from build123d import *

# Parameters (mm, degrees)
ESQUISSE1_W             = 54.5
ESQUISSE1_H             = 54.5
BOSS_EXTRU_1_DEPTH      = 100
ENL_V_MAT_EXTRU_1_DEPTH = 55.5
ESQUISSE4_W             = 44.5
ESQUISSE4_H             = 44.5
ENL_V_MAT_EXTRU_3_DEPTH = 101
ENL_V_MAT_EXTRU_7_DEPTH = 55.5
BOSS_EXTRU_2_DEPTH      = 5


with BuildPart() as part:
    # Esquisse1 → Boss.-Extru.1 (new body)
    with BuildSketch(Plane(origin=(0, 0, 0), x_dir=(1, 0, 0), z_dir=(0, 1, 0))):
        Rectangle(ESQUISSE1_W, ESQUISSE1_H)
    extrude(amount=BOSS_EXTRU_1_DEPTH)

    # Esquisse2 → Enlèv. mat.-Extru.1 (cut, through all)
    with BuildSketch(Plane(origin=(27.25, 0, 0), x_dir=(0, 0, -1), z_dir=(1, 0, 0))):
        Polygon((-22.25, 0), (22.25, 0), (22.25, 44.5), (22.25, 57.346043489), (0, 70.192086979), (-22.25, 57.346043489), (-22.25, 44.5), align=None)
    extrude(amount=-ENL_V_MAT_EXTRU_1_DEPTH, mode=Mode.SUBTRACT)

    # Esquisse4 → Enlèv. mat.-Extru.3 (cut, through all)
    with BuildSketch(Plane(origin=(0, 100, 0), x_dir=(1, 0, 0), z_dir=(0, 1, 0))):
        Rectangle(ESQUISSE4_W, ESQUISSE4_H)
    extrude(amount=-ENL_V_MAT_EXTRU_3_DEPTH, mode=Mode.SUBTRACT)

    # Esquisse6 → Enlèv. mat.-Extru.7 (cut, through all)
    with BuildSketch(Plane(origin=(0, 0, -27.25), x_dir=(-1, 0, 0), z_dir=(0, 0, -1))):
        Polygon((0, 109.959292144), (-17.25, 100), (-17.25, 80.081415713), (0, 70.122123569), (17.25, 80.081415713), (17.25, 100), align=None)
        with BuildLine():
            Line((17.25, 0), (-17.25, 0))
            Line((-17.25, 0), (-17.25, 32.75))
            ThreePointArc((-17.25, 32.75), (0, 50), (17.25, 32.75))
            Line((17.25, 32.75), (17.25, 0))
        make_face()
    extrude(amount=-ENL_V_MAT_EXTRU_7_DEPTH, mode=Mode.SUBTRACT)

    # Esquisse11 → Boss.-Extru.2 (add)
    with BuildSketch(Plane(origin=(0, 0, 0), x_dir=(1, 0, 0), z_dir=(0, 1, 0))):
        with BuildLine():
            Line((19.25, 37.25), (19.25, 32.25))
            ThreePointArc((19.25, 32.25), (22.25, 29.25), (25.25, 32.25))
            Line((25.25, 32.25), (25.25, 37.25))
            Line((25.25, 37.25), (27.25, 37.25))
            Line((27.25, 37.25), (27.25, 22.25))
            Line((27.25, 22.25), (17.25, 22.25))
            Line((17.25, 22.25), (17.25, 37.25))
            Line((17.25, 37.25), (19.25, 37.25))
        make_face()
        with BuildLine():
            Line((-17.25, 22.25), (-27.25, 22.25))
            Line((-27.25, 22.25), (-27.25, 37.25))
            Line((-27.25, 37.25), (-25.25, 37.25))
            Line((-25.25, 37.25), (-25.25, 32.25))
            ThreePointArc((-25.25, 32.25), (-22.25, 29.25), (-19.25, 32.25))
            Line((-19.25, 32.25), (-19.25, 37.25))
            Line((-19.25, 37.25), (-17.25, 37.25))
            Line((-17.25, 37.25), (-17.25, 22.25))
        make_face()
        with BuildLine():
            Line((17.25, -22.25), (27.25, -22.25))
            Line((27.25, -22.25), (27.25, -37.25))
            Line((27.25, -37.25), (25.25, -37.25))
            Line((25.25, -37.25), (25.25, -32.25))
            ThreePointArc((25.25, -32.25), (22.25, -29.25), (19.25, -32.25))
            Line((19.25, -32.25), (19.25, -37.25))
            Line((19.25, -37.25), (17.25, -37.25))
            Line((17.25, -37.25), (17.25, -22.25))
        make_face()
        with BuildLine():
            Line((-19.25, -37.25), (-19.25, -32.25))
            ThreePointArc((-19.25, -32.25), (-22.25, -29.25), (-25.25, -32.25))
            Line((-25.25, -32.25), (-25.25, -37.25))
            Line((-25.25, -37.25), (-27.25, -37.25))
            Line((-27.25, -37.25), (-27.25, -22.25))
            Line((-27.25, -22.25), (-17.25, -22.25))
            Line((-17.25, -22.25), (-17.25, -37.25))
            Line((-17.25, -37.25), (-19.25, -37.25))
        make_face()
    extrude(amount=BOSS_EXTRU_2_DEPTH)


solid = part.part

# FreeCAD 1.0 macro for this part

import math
import FreeCAD as App
import Part
import Sketcher
from FreeCAD import Vector
Q = App.Units.Quantity

doc = App.newDocument("Part")
body = doc.addObject("PartDesign::Body", "Body")

sketch1 = body.newObject("Sketcher::SketchObject", "Sketch")
sketch1.AttachmentSupport = (doc.getObject("XZ_Plane"), [""])
sketch1.MapMode = "FlatFace"
sketch1.addGeometry([
    Part.LineSegment(Vector(-27, -27, 0), Vector(-27, 27, 0)),
    Part.LineSegment(Vector(-27, 27, 0), Vector(27, 27, 0)),
    Part.LineSegment(Vector(27, 27, 0), Vector(27, -27, 0)),
    Part.LineSegment(Vector(27, -27, 0), Vector(-27, -27, 0)),
], False)
sketch1.addConstraint([
    Sketcher.Constraint("Coincident", 0, 2, 1, 1),
    Sketcher.Constraint("Coincident", 1, 2, 2, 1),
    Sketcher.Constraint("Coincident", 2, 2, 3, 1),
    Sketcher.Constraint("Coincident", 3, 2, 0, 1),
    Sketcher.Constraint("Vertical", 0),
    Sketcher.Constraint("Horizontal", 1),
    Sketcher.Constraint("Vertical", 2),
    Sketcher.Constraint("Horizontal", 3),
    Sketcher.Constraint("Symmetric", 0, 2, 2, 2, -1, 1),
    Sketcher.Constraint("Equal", 3, 0),
    Sketcher.Constraint("DistanceX", 1, 1, 1, 2, Q("54.5 mm")),
])
pad1 = body.newObject("PartDesign::Pad", "Pad")
pad1.Profile = sketch1
pad1.Length = 100
pad1.Reversed = True

sketch2 = body.newObject("Sketcher::SketchObject", "Sketch001")
sketch2.AttachmentSupport = (doc.getObject("YZ_Plane"), [""])
sketch2.MapMode = "FlatFace"
sketch2.AttachmentOffset = App.Placement(Vector(0, 0, 27.25), App.Rotation())
sketch2.addGeometry([
    Part.LineSegment(Vector(0, 22, 0), Vector(0, -22, 0)),
    Part.LineSegment(Vector(0, -22, 0), Vector(57, -22, 0)),
    Part.LineSegment(Vector(57, -22, 0), Vector(70, 0, 0)),
    Part.LineSegment(Vector(70, 0, 0), Vector(57, 22, 0)),
    Part.LineSegment(Vector(57, 22, 0), Vector(0, 22, 0)),
], False)
sketch2.addConstraint([
    Sketcher.Constraint("Coincident", 0, 2, 1, 1),
    Sketcher.Constraint("Coincident", 1, 2, 2, 1),
    Sketcher.Constraint("Coincident", 2, 2, 3, 1),
    Sketcher.Constraint("Coincident", 3, 2, 4, 1),
    Sketcher.Constraint("Coincident", 4, 2, 0, 1),
    Sketcher.Constraint("Vertical", 0),
    Sketcher.Constraint("Horizontal", 1),
    Sketcher.Constraint("Horizontal", 4),
    Sketcher.Constraint("Symmetric", 0, 2, 4, 2, -1, 1),
    Sketcher.Constraint("PointOnObject", 2, 2, -1),
    Sketcher.Constraint("Vertical", 1, 2, 3, 2),
    Sketcher.Constraint("Angle", 2, Q("60 deg")),
    Sketcher.Constraint("DistanceY", 0, 2, 0, 1, Q("44.5 mm")),
    Sketcher.Constraint("DistanceX", 1, 1, 1, 2, Q("57.346043 mm")),
])
pocket1 = body.newObject("PartDesign::Pocket", "Pocket")
pocket1.Profile = sketch2
pocket1.Type = "ThroughAll"

sketch3 = body.newObject("Sketcher::SketchObject", "Sketch002")
sketch3.AttachmentSupport = (doc.getObject("XZ_Plane"), [""])
sketch3.MapMode = "FlatFace"
sketch3.AttachmentOffset = App.Placement(Vector(0, 0, -100), App.Rotation())
sketch3.addGeometry([
    Part.LineSegment(Vector(-22, -22, 0), Vector(-22, 22, 0)),
    Part.LineSegment(Vector(-22, 22, 0), Vector(22, 22, 0)),
    Part.LineSegment(Vector(22, 22, 0), Vector(22, -22, 0)),
    Part.LineSegment(Vector(22, -22, 0), Vector(-22, -22, 0)),
], False)
sketch3.addConstraint([
    Sketcher.Constraint("Coincident", 0, 2, 1, 1),
    Sketcher.Constraint("Coincident", 1, 2, 2, 1),
    Sketcher.Constraint("Coincident", 2, 2, 3, 1),
    Sketcher.Constraint("Coincident", 3, 2, 0, 1),
    Sketcher.Constraint("Vertical", 0),
    Sketcher.Constraint("Horizontal", 1),
    Sketcher.Constraint("Vertical", 2),
    Sketcher.Constraint("Horizontal", 3),
    Sketcher.Constraint("Symmetric", 0, 2, 2, 2, -1, 1),
    Sketcher.Constraint("Equal", 3, 0),
    Sketcher.Constraint("DistanceX", 1, 1, 1, 2, Q("44.5 mm")),
])
pocket2 = body.newObject("PartDesign::Pocket", "Pocket001")
pocket2.Profile = sketch3
pocket2.Type = "ThroughAll"
pocket2.Reversed = True

sketch4 = body.newObject("Sketcher::SketchObject", "Sketch003")
sketch4.AttachmentSupport = (doc.getObject("XY_Plane"), [""])
sketch4.MapMode = "FlatFace"
sketch4.AttachmentOffset = App.Placement(Vector(0, 0, -27.25), App.Rotation())
sketch4.addGeometry([
    Part.LineSegment(Vector(0, 110, 0), Vector(17, 100, 0)),
    Part.LineSegment(Vector(17, 100, 0), Vector(17, 80, 0)),
    Part.LineSegment(Vector(17, 80, 0), Vector(0, 70, 0)),
    Part.LineSegment(Vector(0, 70, 0), Vector(-17, 80, 0)),
    Part.LineSegment(Vector(-17, 80, 0), Vector(-17, 100, 0)),
    Part.LineSegment(Vector(-17, 100, 0), Vector(0, 110, 0)),
    Part.LineSegment(Vector(17, 0, 0), Vector(-17, 0, 0)),
    Part.LineSegment(Vector(-17, 0, 0), Vector(-17, 33, 0)),
    Part.ArcOfCircle(Part.Circle(Vector(0, 33, 0), Vector(0, 0, 1), 17), math.radians(0), math.radians(180)),
    Part.LineSegment(Vector(17, 33, 0), Vector(17, 0, 0)),
], False)
sketch4.addConstraint([
    Sketcher.Constraint("Coincident", 0, 2, 1, 1),
    Sketcher.Constraint("Coincident", 1, 2, 2, 1),
    Sketcher.Constraint("Coincident", 2, 2, 3, 1),
    Sketcher.Constraint("Coincident", 3, 2, 4, 1),
    Sketcher.Constraint("Coincident", 4, 2, 5, 1),
    Sketcher.Constraint("Coincident", 5, 2, 0, 1),
    Sketcher.Constraint("Coincident", 6, 2, 7, 1),
    Sketcher.Constraint("Tangent", 7, 2, 8, 2),
    Sketcher.Constraint("Tangent", 8, 1, 9, 1),
    Sketcher.Constraint("Coincident", 9, 2, 6, 1),
    Sketcher.Constraint("Vertical", 1),
    Sketcher.Constraint("Vertical", 4),
    Sketcher.Constraint("Horizontal", 6),
    Sketcher.Constraint("Vertical", 7),
    Sketcher.Constraint("Vertical", 9),
    Sketcher.Constraint("Symmetric", 6, 2, 9, 2, -1, 1),
    Sketcher.Constraint("Symmetric", 1, 2, 3, 2, -2),
    Sketcher.Constraint("PointOnObject", 2, 2, -2),
    Sketcher.Constraint("PointOnObject", 5, 2, -2),
    Sketcher.Constraint("Parallel", 0, 3),
    Sketcher.Constraint("Parallel", 2, 5),
    Sketcher.Constraint("Vertical", 4, 2, 6, 2),
    Sketcher.Constraint("Angle", 0, Q("-30 deg")),
    Sketcher.Constraint("Radius", 8, Q("17.25 mm")),
    Sketcher.Constraint("DistanceY", -1, 1, 0, 2, Q("100 mm")),
    Sketcher.Constraint("DistanceY", 7, 1, 7, 2, Q("32.75 mm")),
    Sketcher.Constraint("DistanceY", 1, 2, 1, 1, Q("19.918584 mm")),
])
pocket3 = body.newObject("PartDesign::Pocket", "Pocket002")
pocket3.Profile = sketch4
pocket3.Type = "ThroughAll"
pocket3.Reversed = True

sketch5 = body.newObject("Sketcher::SketchObject", "Sketch004")
sketch5.AttachmentSupport = (doc.getObject("XZ_Plane"), [""])
sketch5.MapMode = "FlatFace"
sketch5.addGeometry([
    Part.LineSegment(Vector(19.2, -32.2, 0), Vector(19.2, -37.2, 0)),
    Part.LineSegment(Vector(19.2, -37.2, 0), Vector(17.2, -37.2, 0)),
    Part.LineSegment(Vector(17.2, -37.2, 0), Vector(17.2, -22.2, 0)),
    Part.LineSegment(Vector(17.2, -22.2, 0), Vector(27.2, -22.2, 0)),
    Part.LineSegment(Vector(27.2, -22.2, 0), Vector(27.2, -37.2, 0)),
    Part.LineSegment(Vector(27.2, -37.2, 0), Vector(25.2, -37.2, 0)),
    Part.LineSegment(Vector(25.2, -37.2, 0), Vector(25.2, -32.2, 0)),
    Part.ArcOfCircle(Part.Circle(Vector(22.2, -32.2, 0), Vector(0, 0, 1), 3), math.radians(0), math.radians(180)),
    Part.LineSegment(Vector(-27.2, -22.2, 0), Vector(-17.2, -22.2, 0)),
    Part.LineSegment(Vector(-17.2, -22.2, 0), Vector(-17.2, -37.2, 0)),
    Part.LineSegment(Vector(-17.2, -37.2, 0), Vector(-19.2, -37.2, 0)),
    Part.LineSegment(Vector(-19.2, -37.2, 0), Vector(-19.2, -32.2, 0)),
    Part.ArcOfCircle(Part.Circle(Vector(-22.2, -32.2, 0), Vector(0, 0, 1), 3), math.radians(0), math.radians(180)),
    Part.LineSegment(Vector(-25.2, -32.2, 0), Vector(-25.2, -37.2, 0)),
    Part.LineSegment(Vector(-25.2, -37.2, 0), Vector(-27.2, -37.2, 0)),
    Part.LineSegment(Vector(-27.2, -37.2, 0), Vector(-27.2, -22.2, 0)),
    Part.LineSegment(Vector(27.2, 22.2, 0), Vector(17.2, 22.2, 0)),
    Part.LineSegment(Vector(17.2, 22.2, 0), Vector(17.2, 37.2, 0)),
    Part.LineSegment(Vector(17.2, 37.2, 0), Vector(19.2, 37.2, 0)),
    Part.LineSegment(Vector(19.2, 37.2, 0), Vector(19.2, 32.2, 0)),
    Part.ArcOfCircle(Part.Circle(Vector(22.2, 32.2, 0), Vector(0, 0, 1), 3), math.radians(180), math.radians(360)),
    Part.LineSegment(Vector(25.2, 32.2, 0), Vector(25.2, 37.2, 0)),
    Part.LineSegment(Vector(25.2, 37.2, 0), Vector(27.2, 37.2, 0)),
    Part.LineSegment(Vector(27.2, 37.2, 0), Vector(27.2, 22.2, 0)),
    Part.LineSegment(Vector(-19.2, 32.2, 0), Vector(-19.2, 37.2, 0)),
    Part.LineSegment(Vector(-19.2, 37.2, 0), Vector(-17.2, 37.2, 0)),
    Part.LineSegment(Vector(-17.2, 37.2, 0), Vector(-17.2, 22.2, 0)),
    Part.LineSegment(Vector(-17.2, 22.2, 0), Vector(-27.2, 22.2, 0)),
    Part.LineSegment(Vector(-27.2, 22.2, 0), Vector(-27.2, 37.2, 0)),
    Part.LineSegment(Vector(-27.2, 37.2, 0), Vector(-25.2, 37.2, 0)),
    Part.LineSegment(Vector(-25.2, 37.2, 0), Vector(-25.2, 32.2, 0)),
    Part.ArcOfCircle(Part.Circle(Vector(-22.2, 32.2, 0), Vector(0, 0, 1), 3), math.radians(180), math.radians(360)),
], False)
sketch5.addConstraint([
    Sketcher.Constraint("Coincident", 0, 2, 1, 1),
    Sketcher.Constraint("Coincident", 1, 2, 2, 1),
    Sketcher.Constraint("Coincident", 2, 2, 3, 1),
    Sketcher.Constraint("Coincident", 3, 2, 4, 1),
    Sketcher.Constraint("Coincident", 4, 2, 5, 1),
    Sketcher.Constraint("Coincident", 5, 2, 6, 1),
    Sketcher.Constraint("Tangent", 6, 2, 7, 1),
    Sketcher.Constraint("Tangent", 7, 2, 0, 1),
    Sketcher.Constraint("Coincident", 8, 2, 9, 1),
    Sketcher.Constraint("Coincident", 9, 2, 10, 1),
    Sketcher.Constraint("Coincident", 10, 2, 11, 1),
    Sketcher.Constraint("Tangent", 11, 2, 12, 1),
    Sketcher.Constraint("Tangent", 12, 2, 13, 1),
    Sketcher.Constraint("Coincident", 13, 2, 14, 1),
    Sketcher.Constraint("Coincident", 14, 2, 15, 1),
    Sketcher.Constraint("Coincident", 15, 2, 8, 1),
    Sketcher.Constraint("Coincident", 16, 2, 17, 1),
    Sketcher.Constraint("Coincident", 17, 2, 18, 1),
    Sketcher.Constraint("Coincident", 18, 2, 19, 1),
    Sketcher.Constraint("Tangent", 19, 2, 20, 1),
    Sketcher.Constraint("Tangent", 20, 2, 21, 1),
    Sketcher.Constraint("Coincident", 21, 2, 22, 1),
    Sketcher.Constraint("Coincident", 22, 2, 23, 1),
    Sketcher.Constraint("Coincident", 23, 2, 16, 1),
    Sketcher.Constraint("Coincident", 24, 2, 25, 1),
    Sketcher.Constraint("Coincident", 25, 2, 26, 1),
    Sketcher.Constraint("Coincident", 26, 2, 27, 1),
    Sketcher.Constraint("Coincident", 27, 2, 28, 1),
    Sketcher.Constraint("Coincident", 28, 2, 29, 1),
    Sketcher.Constraint("Coincident", 29, 2, 30, 1),
    Sketcher.Constraint("Tangent", 30, 2, 31, 1),
    Sketcher.Constraint("Tangent", 31, 2, 24, 1),
    Sketcher.Constraint("Vertical", 0),
    Sketcher.Constraint("Horizontal", 1),
    Sketcher.Constraint("Vertical", 2),
    Sketcher.Constraint("Horizontal", 3),
    Sketcher.Constraint("Vertical", 4),
    Sketcher.Constraint("Horizontal", 5),
    Sketcher.Constraint("Vertical", 6),
    Sketcher.Constraint("Horizontal", 8),
    Sketcher.Constraint("Vertical", 9),
    Sketcher.Constraint("Horizontal", 10),
    Sketcher.Constraint("Vertical", 11),
    Sketcher.Constraint("Vertical", 13),
    Sketcher.Constraint("Horizontal", 14),
    Sketcher.Constraint("Vertical", 15),
    Sketcher.Constraint("Horizontal", 16),
    Sketcher.Constraint("Vertical", 17),
    Sketcher.Constraint("Horizontal", 18),
    Sketcher.Constraint("Vertical", 19),
    Sketcher.Constraint("Vertical", 21),
    Sketcher.Constraint("Horizontal", 22),
    Sketcher.Constraint("Vertical", 23),
    Sketcher.Constraint("Vertical", 24),
    Sketcher.Constraint("Horizontal", 25),
    Sketcher.Constraint("Vertical", 26),
    Sketcher.Constraint("Horizontal", 27),
    Sketcher.Constraint("Vertical", 28),
    Sketcher.Constraint("Horizontal", 29),
    Sketcher.Constraint("Vertical", 30),
    Sketcher.Constraint("Equal", 7, 12),
    Sketcher.Constraint("Equal", 12, 20),
    Sketcher.Constraint("Equal", 20, 31),
    Sketcher.Constraint("Symmetric", 12, 3, 20, 3, -1, 1),
    Sketcher.Constraint("Symmetric", 7, 3, 31, 3, -1, 1),
    Sketcher.Constraint("Symmetric", 8, 2, 16, 2, -1, 1),
    Sketcher.Constraint("Symmetric", 14, 2, 22, 2, -1, 1),
    Sketcher.Constraint("Symmetric", 1, 2, 25, 2, -1, 1),
    Sketcher.Constraint("Symmetric", 3, 2, 27, 2, -1, 1),
    Sketcher.Constraint("Symmetric", 7, 3, 12, 3, -2),
    Sketcher.Constraint("Symmetric", 2, 2, 8, 2, -2),
    Sketcher.Constraint("Symmetric", 4, 2, 14, 2, -2),
    Sketcher.Constraint("Horizontal", 1, 2, 4, 2),
    Sketcher.Constraint("Horizontal", 5, 2, 9, 2),
    Sketcher.Constraint("Horizontal", 18, 2, 21, 2),
    Sketcher.Constraint("Horizontal", 25, 2, 28, 2),
    Sketcher.Constraint("Equal", 1, 5),
    Sketcher.Constraint("Radius", 7, Q("3 mm")),
    Sketcher.Constraint("DistanceX", 1, 2, 1, 1, Q("2 mm")),
    Sketcher.Constraint("DistanceY", 0, 2, 0, 1, Q("5 mm")),
    Sketcher.Constraint("DistanceY", 2, 1, 2, 2, Q("15 mm")),
    Sketcher.Constraint("DistanceX", 12, 3, 7, 3, Q("44.5 mm")),
    Sketcher.Constraint("DistanceY", 7, 3, 20, 3, Q("64.5 mm")),
])
pad2 = body.newObject("PartDesign::Pad", "Pad001")
pad2.Profile = sketch5
pad2.Length = 5
pad2.Reversed = True

doc.recompute()
